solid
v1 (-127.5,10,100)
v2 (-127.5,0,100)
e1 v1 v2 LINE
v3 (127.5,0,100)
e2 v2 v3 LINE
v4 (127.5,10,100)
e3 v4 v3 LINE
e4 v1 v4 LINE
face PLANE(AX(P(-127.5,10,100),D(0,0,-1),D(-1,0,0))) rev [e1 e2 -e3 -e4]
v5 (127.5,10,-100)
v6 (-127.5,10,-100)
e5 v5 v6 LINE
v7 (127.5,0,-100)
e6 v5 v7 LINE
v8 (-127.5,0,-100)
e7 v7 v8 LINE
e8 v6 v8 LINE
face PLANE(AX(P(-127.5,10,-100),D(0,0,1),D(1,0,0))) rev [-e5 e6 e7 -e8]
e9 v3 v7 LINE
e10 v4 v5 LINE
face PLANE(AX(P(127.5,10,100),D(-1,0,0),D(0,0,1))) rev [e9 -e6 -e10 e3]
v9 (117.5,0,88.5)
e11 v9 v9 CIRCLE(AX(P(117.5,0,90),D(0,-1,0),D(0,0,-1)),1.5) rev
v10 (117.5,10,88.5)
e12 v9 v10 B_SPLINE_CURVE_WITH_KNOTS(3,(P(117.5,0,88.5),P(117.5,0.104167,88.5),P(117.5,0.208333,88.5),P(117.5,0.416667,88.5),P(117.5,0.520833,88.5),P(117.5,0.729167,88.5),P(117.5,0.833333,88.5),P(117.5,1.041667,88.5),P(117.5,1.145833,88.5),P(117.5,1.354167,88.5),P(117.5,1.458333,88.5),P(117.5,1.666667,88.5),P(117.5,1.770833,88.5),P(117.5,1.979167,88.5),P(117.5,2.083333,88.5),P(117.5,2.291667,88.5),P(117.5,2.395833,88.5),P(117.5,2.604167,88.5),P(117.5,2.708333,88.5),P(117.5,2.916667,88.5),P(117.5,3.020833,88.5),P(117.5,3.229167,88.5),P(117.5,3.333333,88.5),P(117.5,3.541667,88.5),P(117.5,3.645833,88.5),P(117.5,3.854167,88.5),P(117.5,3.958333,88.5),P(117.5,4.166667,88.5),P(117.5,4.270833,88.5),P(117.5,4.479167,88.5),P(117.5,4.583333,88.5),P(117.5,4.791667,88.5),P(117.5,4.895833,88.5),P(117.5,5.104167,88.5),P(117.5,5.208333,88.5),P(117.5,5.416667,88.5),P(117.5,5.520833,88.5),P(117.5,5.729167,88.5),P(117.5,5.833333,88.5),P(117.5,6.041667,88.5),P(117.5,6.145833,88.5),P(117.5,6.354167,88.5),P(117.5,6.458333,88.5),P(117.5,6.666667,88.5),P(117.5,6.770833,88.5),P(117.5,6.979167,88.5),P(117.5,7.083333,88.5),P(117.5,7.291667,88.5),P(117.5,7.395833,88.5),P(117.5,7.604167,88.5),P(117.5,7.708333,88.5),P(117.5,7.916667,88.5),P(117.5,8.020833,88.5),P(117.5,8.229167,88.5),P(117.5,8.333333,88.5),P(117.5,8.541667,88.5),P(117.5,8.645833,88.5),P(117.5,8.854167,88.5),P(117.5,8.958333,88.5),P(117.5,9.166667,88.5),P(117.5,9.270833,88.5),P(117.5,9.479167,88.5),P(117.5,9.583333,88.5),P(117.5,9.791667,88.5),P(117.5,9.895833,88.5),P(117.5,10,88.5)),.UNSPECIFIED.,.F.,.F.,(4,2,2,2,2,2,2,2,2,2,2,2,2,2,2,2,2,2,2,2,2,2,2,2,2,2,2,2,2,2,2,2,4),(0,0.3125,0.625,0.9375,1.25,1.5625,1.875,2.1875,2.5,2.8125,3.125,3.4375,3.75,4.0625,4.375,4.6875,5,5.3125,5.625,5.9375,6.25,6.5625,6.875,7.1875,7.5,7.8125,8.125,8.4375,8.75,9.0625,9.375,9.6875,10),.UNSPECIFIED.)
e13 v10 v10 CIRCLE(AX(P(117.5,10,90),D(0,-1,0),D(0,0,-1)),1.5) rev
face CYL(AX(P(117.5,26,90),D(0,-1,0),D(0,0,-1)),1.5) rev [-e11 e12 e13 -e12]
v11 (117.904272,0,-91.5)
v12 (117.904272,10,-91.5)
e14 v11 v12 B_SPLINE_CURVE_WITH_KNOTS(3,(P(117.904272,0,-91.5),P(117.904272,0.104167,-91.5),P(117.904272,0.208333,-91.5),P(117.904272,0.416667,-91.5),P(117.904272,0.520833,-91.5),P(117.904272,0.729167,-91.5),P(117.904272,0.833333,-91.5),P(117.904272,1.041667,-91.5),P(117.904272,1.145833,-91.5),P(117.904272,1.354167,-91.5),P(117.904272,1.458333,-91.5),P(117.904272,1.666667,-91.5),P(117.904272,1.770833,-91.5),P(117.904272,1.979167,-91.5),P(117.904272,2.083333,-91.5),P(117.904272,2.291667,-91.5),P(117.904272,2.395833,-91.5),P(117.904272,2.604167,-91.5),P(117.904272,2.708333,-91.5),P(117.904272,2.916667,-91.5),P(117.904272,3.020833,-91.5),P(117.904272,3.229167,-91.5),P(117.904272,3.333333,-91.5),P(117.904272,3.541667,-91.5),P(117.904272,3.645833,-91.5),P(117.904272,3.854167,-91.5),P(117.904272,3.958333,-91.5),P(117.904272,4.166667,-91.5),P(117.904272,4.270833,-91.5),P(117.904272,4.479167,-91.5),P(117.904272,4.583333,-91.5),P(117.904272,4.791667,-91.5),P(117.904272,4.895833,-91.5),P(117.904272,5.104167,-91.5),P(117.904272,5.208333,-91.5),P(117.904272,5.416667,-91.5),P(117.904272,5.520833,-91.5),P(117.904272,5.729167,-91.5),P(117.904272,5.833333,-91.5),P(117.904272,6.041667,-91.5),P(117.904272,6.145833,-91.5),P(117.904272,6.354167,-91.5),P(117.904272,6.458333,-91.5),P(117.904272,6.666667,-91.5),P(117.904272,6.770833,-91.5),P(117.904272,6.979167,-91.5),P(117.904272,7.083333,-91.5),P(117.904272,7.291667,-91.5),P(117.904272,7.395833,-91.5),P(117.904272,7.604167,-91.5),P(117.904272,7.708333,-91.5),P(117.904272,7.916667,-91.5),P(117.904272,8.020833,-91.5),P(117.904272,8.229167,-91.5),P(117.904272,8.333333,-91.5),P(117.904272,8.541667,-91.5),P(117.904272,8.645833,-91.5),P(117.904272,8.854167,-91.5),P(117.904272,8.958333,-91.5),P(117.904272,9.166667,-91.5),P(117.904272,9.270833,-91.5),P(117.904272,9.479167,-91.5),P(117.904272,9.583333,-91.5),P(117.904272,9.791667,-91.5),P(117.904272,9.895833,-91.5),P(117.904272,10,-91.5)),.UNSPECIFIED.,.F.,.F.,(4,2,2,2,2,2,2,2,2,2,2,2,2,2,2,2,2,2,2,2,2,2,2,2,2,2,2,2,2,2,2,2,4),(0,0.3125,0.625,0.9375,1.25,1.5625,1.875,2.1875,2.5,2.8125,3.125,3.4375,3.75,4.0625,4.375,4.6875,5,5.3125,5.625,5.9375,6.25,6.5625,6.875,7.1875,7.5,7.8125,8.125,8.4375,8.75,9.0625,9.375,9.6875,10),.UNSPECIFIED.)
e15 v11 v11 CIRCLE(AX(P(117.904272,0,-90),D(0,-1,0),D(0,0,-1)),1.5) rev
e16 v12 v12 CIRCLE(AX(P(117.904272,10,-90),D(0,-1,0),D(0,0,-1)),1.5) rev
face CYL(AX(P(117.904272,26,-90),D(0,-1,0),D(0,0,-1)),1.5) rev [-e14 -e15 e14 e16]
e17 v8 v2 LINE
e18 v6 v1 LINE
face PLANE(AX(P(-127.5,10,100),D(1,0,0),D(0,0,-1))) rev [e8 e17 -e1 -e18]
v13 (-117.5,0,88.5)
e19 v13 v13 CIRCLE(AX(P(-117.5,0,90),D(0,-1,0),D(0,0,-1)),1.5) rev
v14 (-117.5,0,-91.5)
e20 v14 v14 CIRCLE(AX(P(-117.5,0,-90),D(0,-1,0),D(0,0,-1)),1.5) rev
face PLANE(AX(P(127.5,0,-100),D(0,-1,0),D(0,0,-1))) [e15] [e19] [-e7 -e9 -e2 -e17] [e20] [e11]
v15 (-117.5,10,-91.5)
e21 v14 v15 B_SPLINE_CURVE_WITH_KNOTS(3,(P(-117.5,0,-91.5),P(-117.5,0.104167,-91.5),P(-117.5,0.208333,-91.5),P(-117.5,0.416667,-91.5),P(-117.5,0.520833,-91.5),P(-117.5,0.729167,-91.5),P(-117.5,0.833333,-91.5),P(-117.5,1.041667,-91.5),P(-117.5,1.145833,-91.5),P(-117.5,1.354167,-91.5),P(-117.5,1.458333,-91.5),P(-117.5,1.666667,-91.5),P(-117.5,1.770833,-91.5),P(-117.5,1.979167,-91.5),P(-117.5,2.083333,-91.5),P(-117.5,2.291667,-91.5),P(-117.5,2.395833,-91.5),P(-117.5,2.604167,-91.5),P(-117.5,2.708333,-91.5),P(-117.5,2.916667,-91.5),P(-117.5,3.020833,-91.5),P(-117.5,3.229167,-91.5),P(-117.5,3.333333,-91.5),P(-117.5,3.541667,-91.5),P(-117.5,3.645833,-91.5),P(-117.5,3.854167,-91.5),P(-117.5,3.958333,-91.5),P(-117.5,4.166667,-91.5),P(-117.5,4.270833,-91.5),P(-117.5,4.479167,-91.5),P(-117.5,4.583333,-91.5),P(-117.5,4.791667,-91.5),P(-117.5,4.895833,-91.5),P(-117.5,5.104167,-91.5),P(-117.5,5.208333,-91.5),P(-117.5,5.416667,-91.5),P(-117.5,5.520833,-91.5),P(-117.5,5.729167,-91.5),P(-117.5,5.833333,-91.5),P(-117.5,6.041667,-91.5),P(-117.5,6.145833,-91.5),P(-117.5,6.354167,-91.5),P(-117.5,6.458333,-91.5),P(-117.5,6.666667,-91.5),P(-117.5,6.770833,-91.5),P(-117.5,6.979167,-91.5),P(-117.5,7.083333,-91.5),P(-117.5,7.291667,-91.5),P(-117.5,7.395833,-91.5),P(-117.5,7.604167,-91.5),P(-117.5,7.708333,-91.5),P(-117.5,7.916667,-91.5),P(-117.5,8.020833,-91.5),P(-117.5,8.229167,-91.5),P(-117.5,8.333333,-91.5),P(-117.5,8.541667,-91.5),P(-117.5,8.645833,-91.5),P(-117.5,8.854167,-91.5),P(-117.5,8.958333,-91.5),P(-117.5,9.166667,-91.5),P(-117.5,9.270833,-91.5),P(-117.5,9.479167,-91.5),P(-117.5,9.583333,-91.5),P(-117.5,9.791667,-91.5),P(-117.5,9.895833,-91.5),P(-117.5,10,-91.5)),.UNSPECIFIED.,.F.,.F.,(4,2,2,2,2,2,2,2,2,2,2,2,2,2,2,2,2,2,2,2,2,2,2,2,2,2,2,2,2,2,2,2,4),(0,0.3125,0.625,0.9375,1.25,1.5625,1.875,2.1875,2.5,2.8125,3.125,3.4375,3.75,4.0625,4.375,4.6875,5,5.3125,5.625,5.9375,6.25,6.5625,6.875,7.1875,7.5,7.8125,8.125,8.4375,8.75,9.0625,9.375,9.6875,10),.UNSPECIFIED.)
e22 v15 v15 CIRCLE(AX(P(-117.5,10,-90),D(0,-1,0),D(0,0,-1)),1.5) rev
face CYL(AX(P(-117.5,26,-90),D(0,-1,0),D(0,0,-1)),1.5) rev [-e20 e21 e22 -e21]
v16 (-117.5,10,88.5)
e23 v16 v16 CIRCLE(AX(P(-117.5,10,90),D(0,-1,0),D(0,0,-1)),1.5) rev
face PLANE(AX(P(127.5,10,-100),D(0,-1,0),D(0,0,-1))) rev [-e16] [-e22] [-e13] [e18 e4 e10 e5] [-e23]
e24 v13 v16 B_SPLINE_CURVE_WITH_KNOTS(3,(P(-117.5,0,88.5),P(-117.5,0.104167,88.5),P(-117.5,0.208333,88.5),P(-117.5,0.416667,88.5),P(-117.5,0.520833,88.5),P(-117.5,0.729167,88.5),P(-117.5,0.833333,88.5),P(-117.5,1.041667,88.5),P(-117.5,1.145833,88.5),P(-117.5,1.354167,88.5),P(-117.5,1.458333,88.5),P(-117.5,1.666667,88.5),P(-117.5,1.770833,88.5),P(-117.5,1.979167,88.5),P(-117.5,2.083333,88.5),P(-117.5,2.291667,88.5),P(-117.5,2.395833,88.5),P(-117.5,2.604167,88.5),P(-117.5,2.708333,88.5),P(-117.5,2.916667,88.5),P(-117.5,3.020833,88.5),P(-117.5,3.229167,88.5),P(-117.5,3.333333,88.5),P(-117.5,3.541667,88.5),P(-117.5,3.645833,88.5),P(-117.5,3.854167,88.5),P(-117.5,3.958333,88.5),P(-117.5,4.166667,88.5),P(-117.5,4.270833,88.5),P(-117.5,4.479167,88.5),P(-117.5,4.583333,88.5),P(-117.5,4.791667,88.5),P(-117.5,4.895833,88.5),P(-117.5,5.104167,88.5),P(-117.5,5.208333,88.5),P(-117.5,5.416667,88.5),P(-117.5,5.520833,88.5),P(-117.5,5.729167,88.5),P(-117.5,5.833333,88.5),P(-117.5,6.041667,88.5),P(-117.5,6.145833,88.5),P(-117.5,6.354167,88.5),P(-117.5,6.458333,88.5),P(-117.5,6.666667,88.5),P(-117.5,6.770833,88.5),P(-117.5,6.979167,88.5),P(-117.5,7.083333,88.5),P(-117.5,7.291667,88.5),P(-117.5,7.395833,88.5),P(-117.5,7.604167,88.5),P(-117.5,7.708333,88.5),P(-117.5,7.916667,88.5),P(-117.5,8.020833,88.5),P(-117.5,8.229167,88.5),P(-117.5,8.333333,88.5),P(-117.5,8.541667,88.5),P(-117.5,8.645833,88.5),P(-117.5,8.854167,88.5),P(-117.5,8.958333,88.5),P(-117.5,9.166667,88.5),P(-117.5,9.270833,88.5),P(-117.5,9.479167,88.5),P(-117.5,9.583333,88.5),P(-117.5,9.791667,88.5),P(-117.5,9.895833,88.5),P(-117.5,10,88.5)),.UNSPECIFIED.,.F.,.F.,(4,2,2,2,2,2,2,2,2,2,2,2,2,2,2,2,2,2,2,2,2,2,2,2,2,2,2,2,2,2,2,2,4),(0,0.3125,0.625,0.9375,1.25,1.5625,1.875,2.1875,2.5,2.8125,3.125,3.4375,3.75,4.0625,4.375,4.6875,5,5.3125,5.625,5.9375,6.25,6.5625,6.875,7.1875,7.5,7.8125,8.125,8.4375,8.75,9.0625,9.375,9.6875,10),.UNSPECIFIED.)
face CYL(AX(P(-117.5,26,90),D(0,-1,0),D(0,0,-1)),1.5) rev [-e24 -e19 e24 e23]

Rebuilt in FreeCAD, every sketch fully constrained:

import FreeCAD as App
import Part
import Sketcher
from FreeCAD import Vector
Q = App.Units.Quantity

doc = App.newDocument("Part")
params = doc.addObject("Spreadsheet::Sheet", "Params")
for row, (alias, value) in enumerate([
    ("sketch1_width", "255 mm"),
    ("sketch1_height", "200 mm"),
    ("pad1_length", "10 mm"),
    ("sketch2_diameter", "3 mm"),
], start=1):
    params.set(f"A{row}", alias)
    params.set(f"B{row}", "=" + value)
    params.setAlias(f"B{row}", alias)

body = doc.addObject("PartDesign::Body", "Body")

# Sketch on XZ plane
sketch1 = body.newObject("Sketcher::SketchObject", "Sketch")
sketch1.AttachmentSupport = (doc.getObject("XZ_Plane"), [""])
sketch1.MapMode = "FlatFace"
sketch1.addGeometry([
    Part.LineSegment(Vector(-127.5, -100, 0), Vector(-127.5, 100, 0)),
    Part.LineSegment(Vector(-127.5, 100, 0), Vector(127.5, 100, 0)),
    Part.LineSegment(Vector(127.5, 100, 0), Vector(127.5, -100, 0)),
    Part.LineSegment(Vector(127.5, -100, 0), Vector(-127.5, -100, 0)),
], False)
sketch1.addConstraint([
    Sketcher.Constraint("Coincident", 0, 2, 1, 1),
    Sketcher.Constraint("Coincident", 1, 2, 2, 1),
    Sketcher.Constraint("Coincident", 2, 2, 3, 1),
    Sketcher.Constraint("Coincident", 3, 2, 0, 1),
    Sketcher.Constraint("Vertical", 0),
    Sketcher.Constraint("Horizontal", 1),
    Sketcher.Constraint("Vertical", 2),
    Sketcher.Constraint("Horizontal", 3),
    Sketcher.Constraint("Symmetric", 0, 2, 2, 2, -1, 1),
    Sketcher.Constraint("DistanceX", 1, 1, 1, 2, Q("255 mm")),
    Sketcher.Constraint("DistanceY", 0, 1, 0, 2, Q("200 mm")),
])
sketch1.setExpression("Constraints[9]", "Params.sketch1_width")
sketch1.setExpression("Constraints[10]", "Params.sketch1_height")
pad1 = body.newObject("PartDesign::Pad", "Pad")
pad1.Profile = sketch1
pad1.setExpression("Length", "Params.pad1_length")
pad1.Reversed = True

# Sketch on XZ plane
sketch2 = body.newObject("Sketcher::SketchObject", "Sketch001")
sketch2.AttachmentSupport = (doc.getObject("XZ_Plane"), [""])
sketch2.MapMode = "FlatFace"
sketch2.addGeometry([
    Part.Circle(Vector(-117.5, -90, 0), Vector(0, 0, 1), 1.5),
    Part.Circle(Vector(117.904272, -90, 0), Vector(0, 0, 1), 1.5),
    Part.Circle(Vector(117.5, 90, 0), Vector(0, 0, 1), 1.5),
    Part.Circle(Vector(-117.5, 90, 0), Vector(0, 0, 1), 1.5),
], False)
sketch2.addConstraint([
    Sketcher.Constraint("Equal", 0, 1),
    Sketcher.Constraint("Equal", 1, 2),
    Sketcher.Constraint("Equal", 2, 3),
    Sketcher.Constraint("Symmetric", 0, 3, 2, 3, -1, 1),
    Sketcher.Constraint("Symmetric", 2, 3, 3, 3, -2),
    Sketcher.Constraint("Horizontal", 0, 3, 1, 3),
    Sketcher.Constraint("Diameter", 0, Q("3 mm")),
    Sketcher.Constraint("DistanceY", 0, 3, -1, 1, Q("90 mm")),
    Sketcher.Constraint("DistanceX", 0, 3, 2, 3, Q("235 mm")),
    Sketcher.Constraint("DistanceX", -1, 1, 1, 3, Q("117.904272 mm")),
])
sketch2.setExpression("Constraints[6]", "Params.sketch2_diameter")
pocket1 = body.newObject("PartDesign::Pocket", "Pocket")
pocket1.Profile = sketch2
pocket1.Type = "ThroughAll"
pocket1.Midplane = True

doc.recompute()
